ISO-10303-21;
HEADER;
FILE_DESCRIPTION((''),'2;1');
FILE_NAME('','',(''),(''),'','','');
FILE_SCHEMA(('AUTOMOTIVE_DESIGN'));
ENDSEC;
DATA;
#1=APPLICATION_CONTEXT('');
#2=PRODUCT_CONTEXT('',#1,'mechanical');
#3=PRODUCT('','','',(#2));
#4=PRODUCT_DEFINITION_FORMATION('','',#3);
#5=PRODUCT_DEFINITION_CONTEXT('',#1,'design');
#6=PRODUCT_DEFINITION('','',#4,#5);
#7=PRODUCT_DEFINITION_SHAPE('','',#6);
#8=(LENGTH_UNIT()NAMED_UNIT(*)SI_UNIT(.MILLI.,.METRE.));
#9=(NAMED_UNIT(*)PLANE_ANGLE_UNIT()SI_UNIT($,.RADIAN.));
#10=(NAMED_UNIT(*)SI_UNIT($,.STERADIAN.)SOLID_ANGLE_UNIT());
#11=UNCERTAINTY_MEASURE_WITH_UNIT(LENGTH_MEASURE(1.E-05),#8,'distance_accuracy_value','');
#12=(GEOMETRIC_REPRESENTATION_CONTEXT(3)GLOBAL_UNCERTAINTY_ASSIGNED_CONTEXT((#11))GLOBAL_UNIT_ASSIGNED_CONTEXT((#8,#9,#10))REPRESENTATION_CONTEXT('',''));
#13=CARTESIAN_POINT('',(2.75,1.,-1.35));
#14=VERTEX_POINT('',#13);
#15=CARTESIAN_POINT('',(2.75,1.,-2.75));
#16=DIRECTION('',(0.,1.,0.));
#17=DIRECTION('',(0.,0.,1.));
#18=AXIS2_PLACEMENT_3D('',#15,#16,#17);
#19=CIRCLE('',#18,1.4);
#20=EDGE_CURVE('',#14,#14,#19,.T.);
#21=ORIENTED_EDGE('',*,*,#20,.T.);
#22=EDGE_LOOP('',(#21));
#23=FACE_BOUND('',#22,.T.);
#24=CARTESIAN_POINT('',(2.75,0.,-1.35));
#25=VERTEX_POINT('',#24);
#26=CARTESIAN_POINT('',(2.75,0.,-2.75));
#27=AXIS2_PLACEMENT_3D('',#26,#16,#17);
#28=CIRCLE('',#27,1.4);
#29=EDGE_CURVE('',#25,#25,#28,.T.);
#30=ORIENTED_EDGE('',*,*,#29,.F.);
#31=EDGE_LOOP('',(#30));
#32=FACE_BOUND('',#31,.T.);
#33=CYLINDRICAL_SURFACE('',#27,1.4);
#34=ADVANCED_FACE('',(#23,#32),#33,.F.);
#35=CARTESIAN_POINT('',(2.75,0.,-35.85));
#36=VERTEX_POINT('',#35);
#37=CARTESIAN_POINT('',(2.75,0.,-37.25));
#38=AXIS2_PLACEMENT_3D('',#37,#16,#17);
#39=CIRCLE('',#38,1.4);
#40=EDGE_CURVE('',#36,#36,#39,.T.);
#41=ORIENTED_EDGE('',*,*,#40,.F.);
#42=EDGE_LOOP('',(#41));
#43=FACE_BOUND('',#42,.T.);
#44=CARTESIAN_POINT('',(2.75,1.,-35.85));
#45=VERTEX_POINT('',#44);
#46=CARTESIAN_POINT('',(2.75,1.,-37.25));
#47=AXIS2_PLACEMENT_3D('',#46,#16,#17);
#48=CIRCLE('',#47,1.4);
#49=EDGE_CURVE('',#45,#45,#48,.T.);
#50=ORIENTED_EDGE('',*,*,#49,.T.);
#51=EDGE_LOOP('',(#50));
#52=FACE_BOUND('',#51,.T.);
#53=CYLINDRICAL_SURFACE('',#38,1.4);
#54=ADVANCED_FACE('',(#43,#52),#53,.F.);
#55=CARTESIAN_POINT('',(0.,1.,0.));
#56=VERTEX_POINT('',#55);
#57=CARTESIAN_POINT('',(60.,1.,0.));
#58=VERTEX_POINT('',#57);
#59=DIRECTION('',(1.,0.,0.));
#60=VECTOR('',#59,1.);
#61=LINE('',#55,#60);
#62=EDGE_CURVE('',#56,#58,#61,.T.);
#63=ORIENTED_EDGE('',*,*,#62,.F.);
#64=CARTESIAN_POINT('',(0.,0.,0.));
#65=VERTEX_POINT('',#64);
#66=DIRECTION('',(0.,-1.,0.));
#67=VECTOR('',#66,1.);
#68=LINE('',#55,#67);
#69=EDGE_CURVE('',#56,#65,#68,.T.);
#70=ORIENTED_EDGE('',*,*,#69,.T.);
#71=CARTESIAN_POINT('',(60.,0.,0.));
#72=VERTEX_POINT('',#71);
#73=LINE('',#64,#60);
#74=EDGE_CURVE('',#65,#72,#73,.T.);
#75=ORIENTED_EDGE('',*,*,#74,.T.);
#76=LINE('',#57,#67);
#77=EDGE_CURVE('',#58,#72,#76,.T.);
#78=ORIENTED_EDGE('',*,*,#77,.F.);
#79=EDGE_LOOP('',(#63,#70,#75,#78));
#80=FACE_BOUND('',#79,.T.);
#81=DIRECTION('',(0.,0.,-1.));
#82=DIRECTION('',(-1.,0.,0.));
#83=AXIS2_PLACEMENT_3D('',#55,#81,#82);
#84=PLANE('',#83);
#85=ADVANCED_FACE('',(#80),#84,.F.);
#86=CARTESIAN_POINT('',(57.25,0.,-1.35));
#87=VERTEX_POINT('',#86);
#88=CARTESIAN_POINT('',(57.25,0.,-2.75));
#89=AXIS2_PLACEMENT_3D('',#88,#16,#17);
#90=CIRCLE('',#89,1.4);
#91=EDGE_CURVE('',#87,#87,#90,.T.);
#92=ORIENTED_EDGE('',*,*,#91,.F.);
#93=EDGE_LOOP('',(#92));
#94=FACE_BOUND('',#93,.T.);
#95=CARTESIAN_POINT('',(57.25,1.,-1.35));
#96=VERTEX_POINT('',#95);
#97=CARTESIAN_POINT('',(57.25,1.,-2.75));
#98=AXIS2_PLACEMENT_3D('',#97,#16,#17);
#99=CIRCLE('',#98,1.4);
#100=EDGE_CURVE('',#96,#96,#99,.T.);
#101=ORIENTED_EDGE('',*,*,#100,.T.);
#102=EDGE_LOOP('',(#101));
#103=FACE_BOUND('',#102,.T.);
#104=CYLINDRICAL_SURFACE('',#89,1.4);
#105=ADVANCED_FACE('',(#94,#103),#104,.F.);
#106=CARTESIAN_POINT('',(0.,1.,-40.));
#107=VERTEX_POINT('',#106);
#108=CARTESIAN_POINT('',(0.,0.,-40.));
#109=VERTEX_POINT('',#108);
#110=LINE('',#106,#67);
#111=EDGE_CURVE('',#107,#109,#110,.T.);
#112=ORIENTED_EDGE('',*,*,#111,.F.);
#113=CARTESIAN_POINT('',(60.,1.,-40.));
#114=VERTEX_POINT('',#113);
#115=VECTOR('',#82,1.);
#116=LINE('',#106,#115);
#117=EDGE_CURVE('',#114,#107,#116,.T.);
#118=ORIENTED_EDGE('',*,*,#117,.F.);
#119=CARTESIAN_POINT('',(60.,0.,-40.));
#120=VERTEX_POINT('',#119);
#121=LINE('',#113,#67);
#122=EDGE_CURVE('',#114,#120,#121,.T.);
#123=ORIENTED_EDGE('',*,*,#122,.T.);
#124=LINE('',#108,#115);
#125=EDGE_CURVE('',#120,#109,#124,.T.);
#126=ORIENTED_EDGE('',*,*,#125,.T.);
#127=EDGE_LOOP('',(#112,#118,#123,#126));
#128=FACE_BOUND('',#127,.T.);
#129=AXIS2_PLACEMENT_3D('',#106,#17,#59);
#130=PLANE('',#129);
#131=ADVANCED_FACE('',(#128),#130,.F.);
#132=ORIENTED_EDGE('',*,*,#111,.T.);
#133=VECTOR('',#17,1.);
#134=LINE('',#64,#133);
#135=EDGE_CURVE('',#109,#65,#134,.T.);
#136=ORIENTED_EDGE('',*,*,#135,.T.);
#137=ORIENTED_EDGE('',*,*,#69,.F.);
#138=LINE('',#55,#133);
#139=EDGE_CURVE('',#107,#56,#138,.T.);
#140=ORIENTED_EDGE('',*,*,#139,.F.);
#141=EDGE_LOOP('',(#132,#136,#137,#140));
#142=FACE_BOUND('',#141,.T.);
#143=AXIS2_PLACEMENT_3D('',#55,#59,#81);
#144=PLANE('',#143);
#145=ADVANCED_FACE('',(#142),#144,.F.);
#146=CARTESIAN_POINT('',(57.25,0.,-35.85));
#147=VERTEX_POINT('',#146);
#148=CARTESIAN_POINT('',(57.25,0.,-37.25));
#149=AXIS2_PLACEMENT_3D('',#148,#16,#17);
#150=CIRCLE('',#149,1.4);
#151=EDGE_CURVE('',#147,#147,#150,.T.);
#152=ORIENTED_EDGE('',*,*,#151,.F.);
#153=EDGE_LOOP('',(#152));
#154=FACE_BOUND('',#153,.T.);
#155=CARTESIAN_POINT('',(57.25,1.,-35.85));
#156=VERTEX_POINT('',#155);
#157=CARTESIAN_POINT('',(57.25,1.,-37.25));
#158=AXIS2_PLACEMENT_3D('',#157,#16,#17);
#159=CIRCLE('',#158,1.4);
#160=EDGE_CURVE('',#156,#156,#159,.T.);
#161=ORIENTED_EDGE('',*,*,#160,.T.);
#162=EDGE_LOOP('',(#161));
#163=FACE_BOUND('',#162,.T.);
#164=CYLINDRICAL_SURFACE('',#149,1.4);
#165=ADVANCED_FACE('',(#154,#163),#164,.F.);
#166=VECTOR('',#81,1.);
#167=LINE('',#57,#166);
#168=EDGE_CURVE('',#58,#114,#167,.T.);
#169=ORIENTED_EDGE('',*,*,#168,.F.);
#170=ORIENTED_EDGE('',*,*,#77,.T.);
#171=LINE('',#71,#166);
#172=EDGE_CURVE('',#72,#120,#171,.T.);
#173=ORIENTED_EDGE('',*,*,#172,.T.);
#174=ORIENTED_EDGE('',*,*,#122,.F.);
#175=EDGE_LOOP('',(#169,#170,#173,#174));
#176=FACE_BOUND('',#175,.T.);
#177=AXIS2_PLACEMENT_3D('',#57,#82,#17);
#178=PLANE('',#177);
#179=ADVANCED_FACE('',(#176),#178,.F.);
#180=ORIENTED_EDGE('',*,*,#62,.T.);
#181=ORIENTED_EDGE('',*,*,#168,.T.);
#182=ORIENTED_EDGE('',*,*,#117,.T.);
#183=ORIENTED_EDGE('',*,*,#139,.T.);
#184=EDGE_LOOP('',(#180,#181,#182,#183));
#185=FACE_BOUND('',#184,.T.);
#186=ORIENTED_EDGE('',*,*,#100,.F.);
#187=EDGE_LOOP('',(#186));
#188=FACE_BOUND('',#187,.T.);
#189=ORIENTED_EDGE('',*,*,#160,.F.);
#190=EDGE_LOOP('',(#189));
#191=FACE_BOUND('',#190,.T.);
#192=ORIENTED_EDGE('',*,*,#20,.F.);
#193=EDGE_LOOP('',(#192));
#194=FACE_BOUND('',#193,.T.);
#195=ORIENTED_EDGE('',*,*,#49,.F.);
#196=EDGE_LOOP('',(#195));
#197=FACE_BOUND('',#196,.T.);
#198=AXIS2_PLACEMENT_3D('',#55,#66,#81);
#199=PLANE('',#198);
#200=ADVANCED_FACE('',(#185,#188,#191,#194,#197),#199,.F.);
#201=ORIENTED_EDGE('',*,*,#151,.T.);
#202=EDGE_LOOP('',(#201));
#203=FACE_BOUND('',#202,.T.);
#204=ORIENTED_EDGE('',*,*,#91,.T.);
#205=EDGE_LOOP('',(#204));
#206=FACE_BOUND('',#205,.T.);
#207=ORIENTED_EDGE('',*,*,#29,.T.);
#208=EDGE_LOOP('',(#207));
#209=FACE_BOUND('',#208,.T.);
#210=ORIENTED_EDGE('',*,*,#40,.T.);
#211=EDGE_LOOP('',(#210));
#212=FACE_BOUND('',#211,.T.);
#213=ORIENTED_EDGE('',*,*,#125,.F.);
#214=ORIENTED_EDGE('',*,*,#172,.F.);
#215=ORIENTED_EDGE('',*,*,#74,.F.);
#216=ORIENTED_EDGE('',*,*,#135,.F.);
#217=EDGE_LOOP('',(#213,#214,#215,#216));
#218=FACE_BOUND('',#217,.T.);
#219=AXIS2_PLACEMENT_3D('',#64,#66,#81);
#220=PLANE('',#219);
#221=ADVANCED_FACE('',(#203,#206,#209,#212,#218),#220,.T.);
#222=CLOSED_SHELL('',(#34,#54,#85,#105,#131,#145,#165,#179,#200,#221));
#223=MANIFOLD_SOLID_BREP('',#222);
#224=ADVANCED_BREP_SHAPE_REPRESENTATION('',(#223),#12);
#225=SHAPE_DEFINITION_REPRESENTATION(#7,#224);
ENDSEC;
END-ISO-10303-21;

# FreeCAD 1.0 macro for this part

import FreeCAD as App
import Part
import Sketcher
from FreeCAD import Vector
Q = App.Units.Quantity


def add_polygon(sketch, points):
    """Adds a closed chain of lines whose ends are joined by coincident constraints."""
    first, n = sketch.GeometryCount, len(points)
    for a, b in zip(points, points[1:] + points[:1]):
        sketch.addGeometry(Part.LineSegment(App.Vector(*a, 0), App.Vector(*b, 0)), False)
    for i in range(n):
        sketch.addConstraint(Sketcher.Constraint("Coincident", first + i, 2, first + (i + 1) % n, 1))

doc = App.newDocument("Part")
body = doc.addObject("PartDesign::Body", "Body")

# Sketch on XZ plane
sketch1 = body.newObject("Sketcher::SketchObject", "Sketch")
sketch1.AttachmentSupport = (doc.getObject("XZ_Plane"), [""])
sketch1.MapMode = "FlatFace"
add_polygon(sketch1, [(0, -40), (0, 0), (60, 0), (60, -40)])  # lines 0-3
sketch1.addConstraint([
    Sketcher.Constraint("Vertical", 0),
    Sketcher.Constraint("Horizontal", 1),
    Sketcher.Constraint("Vertical", 2),
    Sketcher.Constraint("Horizontal", 3),
    Sketcher.Constraint("Coincident", 0, 2, -1, 1),
    Sketcher.Constraint("DistanceX", 1, 1, 1, 2, Q("60 mm")),
    Sketcher.Constraint("DistanceY", 0, 1, 0, 2, Q("40 mm")),
])
pad1 = body.newObject("PartDesign::Pad", "Pad")
pad1.Profile = sketch1
pad1.Length = 1
pad1.Reversed = True

# Sketch on XZ plane
sketch2 = body.newObject("Sketcher::SketchObject", "Sketch001")
sketch2.AttachmentSupport = (doc.getObject("XZ_Plane"), [""])
sketch2.MapMode = "FlatFace"
sketch2.AttachmentOffset = App.Placement(Vector(0, 0, -1), App.Rotation())
sketch2.addGeometry([
    Part.Circle(Vector(2.75, -37.25, 0), Vector(0, 0, 1), 1.4),
    Part.Circle(Vector(57.25, -37.25, 0), Vector(0, 0, 1), 1.4),
    Part.Circle(Vector(57.25, -2.75, 0), Vector(0, 0, 1), 1.4),
    Part.Circle(Vector(2.75, -2.75, 0), Vector(0, 0, 1), 1.4),
], False)
sketch2.addConstraint([
    Sketcher.Constraint("Equal", 0, 1),
    Sketcher.Constraint("Equal", 1, 2),
    Sketcher.Constraint("Equal", 2, 3),
    Sketcher.Constraint("Horizontal", 0, 3, 1, 3),
    Sketcher.Constraint("Horizontal", 2, 3, 3, 3),
    Sketcher.Constraint("Vertical", 1, 3, 2, 3),
    Sketcher.Constraint("Vertical", 0, 3, 3, 3),
    Sketcher.Constraint("Diameter", 0, Q("2.8 mm")),
    Sketcher.Constraint("DistanceX", 0, 3, 1, 3, Q("54.5 mm")),
    Sketcher.Constraint("DistanceY", 1, 3, 2, 3, Q("34.5 mm")),
    Sketcher.Constraint("DistanceX", -1, 1, 0, 3, Q("2.75 mm")),
    Sketcher.Constraint("DistanceY", 0, 3, -1, 1, Q("37.25 mm")),
])
pocket1 = body.newObject("PartDesign::Pocket", "Pocket")
pocket1.Profile = sketch2
pocket1.Type = "ThroughAll"
pocket1.Reversed = True

doc.recompute()
